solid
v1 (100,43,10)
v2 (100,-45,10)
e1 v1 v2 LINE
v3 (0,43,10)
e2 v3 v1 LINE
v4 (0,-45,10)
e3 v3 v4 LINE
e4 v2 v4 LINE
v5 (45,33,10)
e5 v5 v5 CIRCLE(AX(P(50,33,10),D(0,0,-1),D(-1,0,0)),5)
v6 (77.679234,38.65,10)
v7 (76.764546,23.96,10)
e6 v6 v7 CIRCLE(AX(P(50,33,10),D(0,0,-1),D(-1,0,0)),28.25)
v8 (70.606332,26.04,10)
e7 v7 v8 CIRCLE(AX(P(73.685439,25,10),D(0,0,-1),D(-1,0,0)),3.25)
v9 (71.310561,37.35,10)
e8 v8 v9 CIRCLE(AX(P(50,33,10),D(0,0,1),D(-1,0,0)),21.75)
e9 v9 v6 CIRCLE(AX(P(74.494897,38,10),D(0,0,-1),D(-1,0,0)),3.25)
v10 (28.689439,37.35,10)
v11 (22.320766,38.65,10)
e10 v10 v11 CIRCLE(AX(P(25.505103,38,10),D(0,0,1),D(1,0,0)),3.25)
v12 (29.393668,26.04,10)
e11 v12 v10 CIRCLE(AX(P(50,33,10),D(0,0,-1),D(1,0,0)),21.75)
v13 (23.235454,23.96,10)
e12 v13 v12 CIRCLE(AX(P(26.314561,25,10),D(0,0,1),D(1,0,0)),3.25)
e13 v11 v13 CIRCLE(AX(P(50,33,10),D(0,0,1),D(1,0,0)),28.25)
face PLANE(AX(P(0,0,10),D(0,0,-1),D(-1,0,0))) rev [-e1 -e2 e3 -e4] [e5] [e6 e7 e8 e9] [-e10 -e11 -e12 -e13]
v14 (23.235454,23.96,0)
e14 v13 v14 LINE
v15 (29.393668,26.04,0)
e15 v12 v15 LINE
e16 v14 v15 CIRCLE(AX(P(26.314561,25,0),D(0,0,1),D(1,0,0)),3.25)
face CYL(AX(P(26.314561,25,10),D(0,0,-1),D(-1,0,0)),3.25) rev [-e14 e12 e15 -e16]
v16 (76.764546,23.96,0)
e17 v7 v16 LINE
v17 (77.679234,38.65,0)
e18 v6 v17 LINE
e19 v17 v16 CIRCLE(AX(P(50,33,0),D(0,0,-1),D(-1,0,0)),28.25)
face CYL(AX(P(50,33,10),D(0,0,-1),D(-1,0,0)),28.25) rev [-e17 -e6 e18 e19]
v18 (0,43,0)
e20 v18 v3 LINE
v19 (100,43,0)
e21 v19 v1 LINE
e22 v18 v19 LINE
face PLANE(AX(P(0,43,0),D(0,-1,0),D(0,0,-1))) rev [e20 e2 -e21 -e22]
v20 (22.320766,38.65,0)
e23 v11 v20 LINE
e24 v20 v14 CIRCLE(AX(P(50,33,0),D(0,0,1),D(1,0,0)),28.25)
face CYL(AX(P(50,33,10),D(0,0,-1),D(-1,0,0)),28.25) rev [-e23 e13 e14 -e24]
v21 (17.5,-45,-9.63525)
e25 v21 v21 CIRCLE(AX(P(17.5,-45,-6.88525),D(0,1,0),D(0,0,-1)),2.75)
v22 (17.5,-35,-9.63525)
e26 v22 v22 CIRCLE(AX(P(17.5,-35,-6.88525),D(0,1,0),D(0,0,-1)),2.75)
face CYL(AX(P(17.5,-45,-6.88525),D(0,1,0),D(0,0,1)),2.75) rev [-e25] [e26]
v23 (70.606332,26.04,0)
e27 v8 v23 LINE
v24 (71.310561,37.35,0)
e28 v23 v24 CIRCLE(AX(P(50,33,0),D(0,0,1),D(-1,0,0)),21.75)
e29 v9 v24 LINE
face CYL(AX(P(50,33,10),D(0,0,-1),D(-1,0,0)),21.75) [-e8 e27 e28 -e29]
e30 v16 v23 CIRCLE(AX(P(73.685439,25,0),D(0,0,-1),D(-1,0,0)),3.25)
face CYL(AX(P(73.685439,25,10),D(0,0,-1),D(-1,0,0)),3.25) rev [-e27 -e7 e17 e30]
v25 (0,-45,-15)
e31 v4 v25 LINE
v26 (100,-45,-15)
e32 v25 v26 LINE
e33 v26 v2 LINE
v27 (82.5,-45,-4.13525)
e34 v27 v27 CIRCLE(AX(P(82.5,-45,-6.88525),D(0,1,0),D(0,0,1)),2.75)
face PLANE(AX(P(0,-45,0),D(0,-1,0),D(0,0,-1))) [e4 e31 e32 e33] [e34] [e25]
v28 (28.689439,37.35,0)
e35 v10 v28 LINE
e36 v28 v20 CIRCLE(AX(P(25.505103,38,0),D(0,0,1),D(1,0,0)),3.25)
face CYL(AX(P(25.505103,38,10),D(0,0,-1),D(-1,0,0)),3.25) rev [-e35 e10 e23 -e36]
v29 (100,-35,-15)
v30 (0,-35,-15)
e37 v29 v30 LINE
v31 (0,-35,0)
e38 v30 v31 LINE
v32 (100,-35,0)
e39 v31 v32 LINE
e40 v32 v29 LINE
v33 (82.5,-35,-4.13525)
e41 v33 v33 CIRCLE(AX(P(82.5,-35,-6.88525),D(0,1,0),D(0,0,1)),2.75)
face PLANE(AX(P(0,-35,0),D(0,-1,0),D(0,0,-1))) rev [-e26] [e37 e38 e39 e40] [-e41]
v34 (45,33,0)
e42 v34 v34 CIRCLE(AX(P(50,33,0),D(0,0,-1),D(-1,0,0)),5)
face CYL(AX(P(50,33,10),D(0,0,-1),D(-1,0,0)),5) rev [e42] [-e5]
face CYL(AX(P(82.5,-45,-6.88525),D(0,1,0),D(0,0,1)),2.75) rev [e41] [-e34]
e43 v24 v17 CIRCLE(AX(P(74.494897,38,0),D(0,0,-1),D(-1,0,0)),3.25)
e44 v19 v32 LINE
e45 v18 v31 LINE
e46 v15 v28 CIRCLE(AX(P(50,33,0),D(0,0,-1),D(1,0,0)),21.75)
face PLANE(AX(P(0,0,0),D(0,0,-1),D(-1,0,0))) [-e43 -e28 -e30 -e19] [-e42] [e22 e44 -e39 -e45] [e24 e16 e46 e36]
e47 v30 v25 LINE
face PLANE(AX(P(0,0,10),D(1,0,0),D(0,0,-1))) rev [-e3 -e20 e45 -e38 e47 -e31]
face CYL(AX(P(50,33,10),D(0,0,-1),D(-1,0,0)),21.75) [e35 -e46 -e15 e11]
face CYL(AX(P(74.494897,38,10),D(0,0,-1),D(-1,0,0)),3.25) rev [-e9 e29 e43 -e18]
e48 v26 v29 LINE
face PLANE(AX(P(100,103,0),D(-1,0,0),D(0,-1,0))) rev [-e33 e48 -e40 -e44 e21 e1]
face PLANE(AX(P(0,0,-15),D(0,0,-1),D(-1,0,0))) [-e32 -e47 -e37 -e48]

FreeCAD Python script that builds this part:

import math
import FreeCAD as App
import Part
import Sketcher
from FreeCAD import Vector
Q = App.Units.Quantity


def add_polygon(sketch, points):
    """Adds a closed chain of lines whose ends are joined by coincident constraints."""
    first, n = sketch.GeometryCount, len(points)
    for a, b in zip(points, points[1:] + points[:1]):
        sketch.addGeometry(Part.LineSegment(App.Vector(*a, 0), App.Vector(*b, 0)), False)
    for i in range(n):
        sketch.addConstraint(Sketcher.Constraint("Coincident", first + i, 2, first + (i + 1) % n, 1))

doc = App.newDocument("Part")
params = doc.addObject("Spreadsheet::Sheet", "Params")
for row, (alias, value) in enumerate([
    ("sketch1_width", "150 mm"),
    ("sketch1_height", "103.55 mm"),
    ("pad1_length", "10 mm"),
    ("sketch3_width", "150 mm"),
    ("sketch3_height", "103 mm"),
    ("pad2_length", "10 mm"),
    ("sketch4_width", "50 mm"),
    ("sketch4_height", "103 mm"),
    ("sketch5_height", "60 mm"),
    ("pocket3_length", "10 mm"),
    ("sketch6_diameter", "10 mm"),
    ("sketch7_radius", "3.25 mm"),
    ("sketch7_radius2", "21.75 mm"),
    ("sketch8_width", "100 mm"),
    ("sketch8_height", "10 mm"),
    ("pad3_length", "45 mm"),
    ("sketch9_width", "100 mm"),
    ("sketch9_height", "5 mm"),
    ("pad4_length", "25 mm"),
    ("sketch10_width", "100 mm"),
    ("sketch10_height", "15 mm"),
    ("pad5_length", "5 mm"),
    ("sketch11_diameter", "5.5 mm"),
], start=1):
    params.set(f"A{row}", alias)
    params.set(f"B{row}", "=" + value)
    params.setAlias(f"B{row}", alias)

body = doc.addObject("PartDesign::Body", "Body")

# Sketch on XY plane
sketch1 = doc.addObject("Sketcher::SketchObject", "Sketch")
body.addObject(sketch1)
sketch1.AttachmentSupport = (doc.XY_Plane, [""])
sketch1.MapMode = "FlatFace"
add_polygon(sketch1, [(150, 104), (0, 90), (0, 0), (150, 0)])  # lines 0-3
sketch1.addConstraint(Sketcher.Constraint("Vertical", 1))
sketch1.addConstraint(Sketcher.Constraint("Horizontal", 2))
sketch1.addConstraint(Sketcher.Constraint("Vertical", 3))
sketch1.addConstraint(Sketcher.Constraint("Coincident", 1, 2, -1, 1))
sketch1.addConstraint(Sketcher.Constraint("DistanceX", 2, 1, 2, 2, Q("150 mm")))
sketch1.addConstraint(Sketcher.Constraint("Angle", 0, Q("-175 deg")))
sketch1.addConstraint(Sketcher.Constraint("DistanceY", 3, 1, 3, 2, Q("103.55 mm")))
sketch1.setExpression("Constraints[8]", "Params.sketch1_width")
sketch1.setExpression("Constraints[10]", "Params.sketch1_height")
pad1 = doc.addObject("PartDesign::Pad", "Pad")
body.addObject(pad1)
pad1.Profile = sketch1
pad1.setExpression("Length", "Params.pad1_length")

# Sketch on XY plane
sketch2 = doc.addObject("Sketcher::SketchObject", "Sketch001")
body.addObject(sketch2)
sketch2.AttachmentSupport = (doc.XY_Plane, [""])
sketch2.MapMode = "FlatFace"
add_polygon(sketch2, [(170, 116), (170, 90), (0, 90), (0, 116)])  # lines 0-3
sketch2.addConstraint(Sketcher.Constraint("Vertical", 0))
sketch2.addConstraint(Sketcher.Constraint("Horizontal", 1))
sketch2.addConstraint(Sketcher.Constraint("Vertical", 2))
sketch2.addConstraint(Sketcher.Constraint("Horizontal", 3))
sketch2.addConstraint(Sketcher.Constraint("PointOnObject", 1, 2, -2))
sketch2.addConstraint(Sketcher.Constraint("DistanceY", -1, 1, 0, 2, Q("90.4267 mm")))
sketch2.addConstraint(Sketcher.Constraint("DistanceX", 1, 2, 1, 1, Q("169.882057 mm")))
sketch2.addConstraint(Sketcher.Constraint("DistanceY", 0, 2, 0, 1, Q("25.097328 mm")))
pocket1 = doc.addObject("PartDesign::Pocket", "Pocket")
body.addObject(pocket1)
pocket1.Profile = sketch2
pocket1.Type = "ThroughAll"
pocket1.Reversed = True

# Sketch on XY plane
sketch3 = doc.addObject("Sketcher::SketchObject", "Sketch002")
body.addObject(sketch3)
sketch3.AttachmentSupport = (doc.XY_Plane, [""])
sketch3.MapMode = "FlatFace"
sketch3.AttachmentOffset = App.Placement(Vector(0, 0, 10), App.Rotation())
add_polygon(sketch3, [(0, 103), (0, 0), (150, 0), (150, 103)])  # lines 0-3
sketch3.addConstraint(Sketcher.Constraint("Vertical", 0))
sketch3.addConstraint(Sketcher.Constraint("Horizontal", 1))
sketch3.addConstraint(Sketcher.Constraint("Vertical", 2))
sketch3.addConstraint(Sketcher.Constraint("Horizontal", 3))
sketch3.addConstraint(Sketcher.Constraint("Coincident", 0, 2, -1, 1))
sketch3.addConstraint(Sketcher.Constraint("DistanceX", 1, 1, 1, 2, Q("150 mm")))
sketch3.addConstraint(Sketcher.Constraint("DistanceY", 0, 2, 0, 1, Q("103 mm")))
sketch3.setExpression("Constraints[9]", "Params.sketch3_width")
sketch3.setExpression("Constraints[10]", "Params.sketch3_height")
pad2 = doc.addObject("PartDesign::Pad", "Pad001")
body.addObject(pad2)
pad2.Profile = sketch3
pad2.setExpression("Length", "Params.pad2_length")
pad2.Reversed = True

# Sketch on XY plane
sketch4 = doc.addObject("Sketcher::SketchObject", "Sketch003")
body.addObject(sketch4)
sketch4.AttachmentSupport = (doc.XY_Plane, [""])
sketch4.MapMode = "FlatFace"
sketch4.AttachmentOffset = App.Placement(Vector(0, 0, 10), App.Rotation())
add_polygon(sketch4, [(100, 103), (100, 0), (150, 0), (150, 103)])  # lines 0-3
sketch4.addConstraint(Sketcher.Constraint("Vertical", 0))
sketch4.addConstraint(Sketcher.Constraint("Horizontal", 1))
sketch4.addConstraint(Sketcher.Constraint("Vertical", 2))
sketch4.addConstraint(Sketcher.Constraint("Horizontal", 3))
sketch4.addConstraint(Sketcher.Constraint("PointOnObject", 0, 2, -1))
sketch4.addConstraint(Sketcher.Constraint("DistanceX", 1, 1, 1, 2, Q("50 mm")))
sketch4.addConstraint(Sketcher.Constraint("DistanceY", 0, 2, 0, 1, Q("103 mm")))
sketch4.addConstraint(Sketcher.Constraint("DistanceX", -1, 1, 0, 2, Q("100 mm")))
sketch4.setExpression("Constraints[9]", "Params.sketch4_width")
sketch4.setExpression("Constraints[10]", "Params.sketch4_height")
pocket2 = doc.addObject("PartDesign::Pocket", "Pocket001")
body.addObject(pocket2)
pocket2.Profile = sketch4
pocket2.Type = "ThroughAll"

# Sketch on XY plane
sketch5 = doc.addObject("Sketcher::SketchObject", "Sketch004")
body.addObject(sketch5)
sketch5.AttachmentSupport = (doc.XY_Plane, [""])
sketch5.MapMode = "FlatFace"
sketch5.AttachmentOffset = App.Placement(Vector(0, 0, 10), App.Rotation())
add_polygon(sketch5, [(0, 103), (0, 43), (131, 43), (131, 103)])  # lines 0-3
sketch5.addConstraint(Sketcher.Constraint("Vertical", 0))
sketch5.addConstraint(Sketcher.Constraint("Horizontal", 1))
sketch5.addConstraint(Sketcher.Constraint("Vertical", 2))
sketch5.addConstraint(Sketcher.Constraint("Horizontal", 3))
sketch5.addConstraint(Sketcher.Constraint("PointOnObject", 0, 2, -2))
sketch5.addConstraint(Sketcher.Constraint("DistanceY", 0, 2, 0, 1, Q("60 mm")))
sketch5.addConstraint(Sketcher.Constraint("DistanceY", -1, 1, 0, 2, Q("43 mm")))
sketch5.addConstraint(Sketcher.Constraint("DistanceX", 1, 1, 1, 2, Q("130.949423 mm")))
sketch5.setExpression("Constraints[9]", "Params.sketch5_height")
pocket3 = doc.addObject("PartDesign::Pocket", "Pocket002")
body.addObject(pocket3)
pocket3.Profile = sketch5
pocket3.setExpression("Length", "Params.pocket3_length")

# Sketch on XY plane
sketch6 = doc.addObject("Sketcher::SketchObject", "Sketch005")
body.addObject(sketch6)
sketch6.AttachmentSupport = (doc.XY_Plane, [""])
sketch6.MapMode = "FlatFace"
sketch6.addGeometry(Part.Circle(Vector(50, 33, 0), Vector(0, 0, 1), 5), False)
sketch6.addConstraint(Sketcher.Constraint("Diameter", 0, Q("10 mm")))
sketch6.addConstraint(Sketcher.Constraint("DistanceX", -1, 1, 0, 3, Q("50 mm")))
sketch6.addConstraint(Sketcher.Constraint("DistanceY", -1, 1, 0, 3, Q("33 mm")))
sketch6.setExpression("Constraints[0]", "Params.sketch6_diameter")
pocket4 = doc.addObject("PartDesign::Pocket", "Pocket003")
body.addObject(pocket4)
pocket4.Profile = sketch6
pocket4.Type = "ThroughAll"
pocket4.Reversed = True

# Sketch on XY plane
sketch7 = doc.addObject("Sketcher::SketchObject", "Sketch006")
body.addObject(sketch7)
sketch7.AttachmentSupport = (doc.XY_Plane, [""])
sketch7.MapMode = "FlatFace"
sketch7.addGeometry(Part.ArcOfCircle(Part.Circle(Vector(73.7, 25, 0), Vector(0, 0, 1), 3.2), math.radians(161), math.radians(341)), False)
sketch7.addGeometry(Part.ArcOfCircle(Part.Circle(Vector(50, 33, 0), Vector(0, 0, 1), 21.8), math.radians(-19), math.radians(12)), False)
sketch7.addGeometry(Part.ArcOfCircle(Part.Circle(Vector(74.5, 38, 0), Vector(0, 0, 1), 3.2), math.radians(12), math.radians(192)), False)
sketch7.addGeometry(Part.ArcOfCircle(Part.Circle(Vector(50, 33, 0), Vector(0, 0, 1), 28.2), math.radians(-19), math.radians(12)), False)
sketch7.addConstraint(Sketcher.Constraint("Tangent", 0, 1, 1, 1))
sketch7.addConstraint(Sketcher.Constraint("Tangent", 1, 2, 2, 2))
sketch7.addConstraint(Sketcher.Constraint("Tangent", 2, 1, 3, 2))
sketch7.addConstraint(Sketcher.Constraint("Tangent", 3, 1, 0, 2))
sketch7.addConstraint(Sketcher.Constraint("Coincident", 3, 3, 1, 3))
sketch7.addConstraint(Sketcher.Constraint("Radius", 0, Q("3.25 mm")))
sketch7.addConstraint(Sketcher.Constraint("Radius", 1, Q("21.75 mm")))
sketch7.addConstraint(Sketcher.Constraint("DistanceY", -1, 1, 0, 3, Q("25 mm")))
sketch7.addConstraint(Sketcher.Constraint("DistanceX", -1, 1, 1, 3, Q("50 mm")))
sketch7.addConstraint(Sketcher.Constraint("DistanceY", -1, 1, 1, 3, Q("33 mm")))
sketch7.addConstraint(Sketcher.Constraint("DistanceY", -1, 1, 2, 3, Q("38 mm")))
sketch7.setExpression("Constraints[5]", "Params.sketch7_radius")
sketch7.setExpression("Constraints[6]", "Params.sketch7_radius2")
pocket5 = doc.addObject("PartDesign::Pocket", "Pocket004")
body.addObject(pocket5)
pocket5.Profile = sketch7
pocket5.Type = "ThroughAll"
pocket5.Reversed = True
doc.recompute()

datumplane = doc.addObject("PartDesign::Plane", "DatumPlane")
body.addObject(datumplane)
datumplane.AttachmentSupport = (doc.YZ_Plane, [""])
datumplane.MapMode = "FlatFace"
datumplane.AttachmentOffset = App.Placement(Vector(0, 0, 50), App.Rotation())
mirrored = doc.addObject("PartDesign::Mirrored", "Mirrored")
body.addObject(mirrored)
mirrored.Originals = [pocket5]
mirrored.MirrorPlane = (datumplane, [""])
body.Tip = mirrored

# Sketch on XZ plane
sketch8 = doc.addObject("Sketcher::SketchObject", "Sketch007")
body.addObject(sketch8)
sketch8.AttachmentSupport = (doc.XZ_Plane, [""])
sketch8.MapMode = "FlatFace"
add_polygon(sketch8, [(0, 10), (0, 0), (100, 0), (100, 10)])  # lines 0-3
sketch8.addConstraint(Sketcher.Constraint("Vertical", 0))
sketch8.addConstraint(Sketcher.Constraint("Horizontal", 1))
sketch8.addConstraint(Sketcher.Constraint("Vertical", 2))
sketch8.addConstraint(Sketcher.Constraint("Horizontal", 3))
sketch8.addConstraint(Sketcher.Constraint("Coincident", 0, 2, -1, 1))
sketch8.addConstraint(Sketcher.Constraint("DistanceX", 1, 1, 1, 2, Q("100 mm")))
sketch8.addConstraint(Sketcher.Constraint("DistanceY", 0, 2, 0, 1, Q("10 mm")))
sketch8.setExpression("Constraints[9]", "Params.sketch8_width")
sketch8.setExpression("Constraints[10]", "Params.sketch8_height")
pad3 = doc.addObject("PartDesign::Pad", "Pad002")
body.addObject(pad3)
pad3.Profile = sketch8
pad3.setExpression("Length", "Params.pad3_length")

# Sketch on XY plane
sketch9 = doc.addObject("Sketcher::SketchObject", "Sketch008")
body.addObject(sketch9)
sketch9.AttachmentSupport = (doc.XY_Plane, [""])
sketch9.MapMode = "FlatFace"
sketch9.AttachmentOffset = App.Placement(Vector(0, 0, 10), App.Rotation())
add_polygon(sketch9, [(0, -40), (0, -45), (100, -45), (100, -40)])  # lines 0-3
sketch9.addConstraint(Sketcher.Constraint("Vertical", 0))
sketch9.addConstraint(Sketcher.Constraint("Horizontal", 1))
sketch9.addConstraint(Sketcher.Constraint("Vertical", 2))
sketch9.addConstraint(Sketcher.Constraint("Horizontal", 3))
sketch9.addConstraint(Sketcher.Constraint("PointOnObject", 0, 2, -2))
sketch9.addConstraint(Sketcher.Constraint("DistanceX", 1, 1, 1, 2, Q("100 mm")))
sketch9.addConstraint(Sketcher.Constraint("DistanceY", 0, 2, 0, 1, Q("5 mm")))
sketch9.addConstraint(Sketcher.Constraint("DistanceY", 0, 2, -1, 1, Q("45 mm")))
sketch9.setExpression("Constraints[9]", "Params.sketch9_width")
sketch9.setExpression("Constraints[10]", "Params.sketch9_height")
pad4 = doc.addObject("PartDesign::Pad", "Pad003")
body.addObject(pad4)
pad4.Profile = sketch9
pad4.setExpression("Length", "Params.pad4_length")
pad4.Reversed = True

# Sketch on XZ plane
sketch10 = doc.addObject("Sketcher::SketchObject", "Sketch009")
body.addObject(sketch10)
sketch10.AttachmentSupport = (doc.XZ_Plane, [""])
sketch10.MapMode = "FlatFace"
sketch10.AttachmentOffset = App.Placement(Vector(0, 0, 40), App.Rotation())
add_polygon(sketch10, [(0, -15), (0, 0), (100, 0), (100, -15)])  # lines 0-3
sketch10.addConstraint(Sketcher.Constraint("Vertical", 0))
sketch10.addConstraint(Sketcher.Constraint("Horizontal", 1))
sketch10.addConstraint(Sketcher.Constraint("Vertical", 2))
sketch10.addConstraint(Sketcher.Constraint("Horizontal", 3))
sketch10.addConstraint(Sketcher.Constraint("Coincident", 0, 2, -1, 1))
sketch10.addConstraint(Sketcher.Constraint("DistanceX", 1, 1, 1, 2, Q("100 mm")))
sketch10.addConstraint(Sketcher.Constraint("DistanceY", 0, 1, 0, 2, Q("15 mm")))
sketch10.setExpression("Constraints[9]", "Params.sketch10_width")
sketch10.setExpression("Constraints[10]", "Params.sketch10_height")
pad5 = doc.addObject("PartDesign::Pad", "Pad004")
body.addObject(pad5)
pad5.Profile = sketch10
pad5.setExpression("Length", "Params.pad5_length")
pad5.Reversed = True

# Sketch on XZ plane
sketch11 = doc.addObject("Sketcher::SketchObject", "Sketch010")
body.addObject(sketch11)
sketch11.AttachmentSupport = (doc.XZ_Plane, [""])
sketch11.MapMode = "FlatFace"
sketch11.AttachmentOffset = App.Placement(Vector(0, 0, 35), App.Rotation())
sketch11.addGeometry(Part.Circle(Vector(82.5, -6.9, 0), Vector(0, 0, 1), 2.8), False)
sketch11.addGeometry(Part.Circle(Vector(17.5, -6.9, 0), Vector(0, 0, 1), 2.8), False)
sketch11.addConstraint(Sketcher.Constraint("Equal", 0, 1))
sketch11.addConstraint(Sketcher.Constraint("Horizontal", 0, 3, 1, 3))
sketch11.addConstraint(Sketcher.Constraint("Diameter", 0, Q("5.5 mm")))
sketch11.addConstraint(Sketcher.Constraint("DistanceX", 1, 3, 0, 3, Q("65 mm")))
sketch11.addConstraint(Sketcher.Constraint("DistanceX", -1, 1, 0, 3, Q("82.5 mm")))
sketch11.addConstraint(Sketcher.Constraint("DistanceY", 0, 3, -1, 1, Q("6.88525 mm")))
sketch11.setExpression("Constraints[2]", "Params.sketch11_diameter")
pocket6 = doc.addObject("PartDesign::Pocket", "Pocket005")
body.addObject(pocket6)
pocket6.Profile = sketch11
pocket6.Type = "ThroughAll"
pocket6.Reversed = True

doc.recompute()
